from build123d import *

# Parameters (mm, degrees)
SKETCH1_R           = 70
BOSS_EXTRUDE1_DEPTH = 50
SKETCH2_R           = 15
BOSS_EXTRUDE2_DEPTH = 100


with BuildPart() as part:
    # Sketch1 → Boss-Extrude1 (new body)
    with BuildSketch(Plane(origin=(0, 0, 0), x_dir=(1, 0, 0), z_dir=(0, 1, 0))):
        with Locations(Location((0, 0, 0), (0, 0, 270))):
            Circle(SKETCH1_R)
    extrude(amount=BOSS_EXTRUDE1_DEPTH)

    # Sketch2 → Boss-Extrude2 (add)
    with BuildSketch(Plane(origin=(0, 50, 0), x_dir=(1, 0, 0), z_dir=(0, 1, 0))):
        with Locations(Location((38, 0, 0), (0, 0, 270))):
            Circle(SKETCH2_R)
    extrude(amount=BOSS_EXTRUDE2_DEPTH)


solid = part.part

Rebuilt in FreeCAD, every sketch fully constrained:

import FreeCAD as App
import Part
import Sketcher

V = App.Vector

doc = App.newDocument("Part")
body = doc.addObject("PartDesign::Body", "Body")

sketch1 = body.newObject("Sketcher::SketchObject", "Sketch")
sketch1.AttachmentSupport = (doc.getObject("XZ_Plane"), [""])
sketch1.MapMode = "FlatFace"
sketch1.addGeometry(Part.Circle(V(0, 0, 0), V(0, 0, 1), 70), False)
sketch1.addConstraint(Sketcher.Constraint("Coincident", 0, 3, -1, 1))
sketch1.addConstraint(Sketcher.Constraint("Diameter", 0, 140.0))
pad1 = body.newObject("PartDesign::Pad", "Pad")
pad1.Profile = sketch1
pad1.Length = 50
pad1.Reversed = True

sketch2 = body.newObject("Sketcher::SketchObject", "Sketch001")
sketch2.AttachmentSupport = (doc.getObject("XZ_Plane"), [""])
sketch2.MapMode = "FlatFace"
sketch2.AttachmentOffset = App.Placement(V(0, 0, -50), App.Rotation())
sketch2.addGeometry(Part.Circle(V(38, 0, 0), V(0, 0, 1), 15), False)
sketch2.addConstraint(Sketcher.Constraint("PointOnObject", 0, 3, -1))
sketch2.addConstraint(Sketcher.Constraint("Diameter", 0, 30.0))
sketch2.addConstraint(Sketcher.Constraint("DistanceX", -1, 1, 0, 3, 38.0))
pad2 = body.newObject("PartDesign::Pad", "Pad001")
pad2.Profile = sketch2
pad2.Length = 100
pad2.Reversed = True

doc.recompute()
